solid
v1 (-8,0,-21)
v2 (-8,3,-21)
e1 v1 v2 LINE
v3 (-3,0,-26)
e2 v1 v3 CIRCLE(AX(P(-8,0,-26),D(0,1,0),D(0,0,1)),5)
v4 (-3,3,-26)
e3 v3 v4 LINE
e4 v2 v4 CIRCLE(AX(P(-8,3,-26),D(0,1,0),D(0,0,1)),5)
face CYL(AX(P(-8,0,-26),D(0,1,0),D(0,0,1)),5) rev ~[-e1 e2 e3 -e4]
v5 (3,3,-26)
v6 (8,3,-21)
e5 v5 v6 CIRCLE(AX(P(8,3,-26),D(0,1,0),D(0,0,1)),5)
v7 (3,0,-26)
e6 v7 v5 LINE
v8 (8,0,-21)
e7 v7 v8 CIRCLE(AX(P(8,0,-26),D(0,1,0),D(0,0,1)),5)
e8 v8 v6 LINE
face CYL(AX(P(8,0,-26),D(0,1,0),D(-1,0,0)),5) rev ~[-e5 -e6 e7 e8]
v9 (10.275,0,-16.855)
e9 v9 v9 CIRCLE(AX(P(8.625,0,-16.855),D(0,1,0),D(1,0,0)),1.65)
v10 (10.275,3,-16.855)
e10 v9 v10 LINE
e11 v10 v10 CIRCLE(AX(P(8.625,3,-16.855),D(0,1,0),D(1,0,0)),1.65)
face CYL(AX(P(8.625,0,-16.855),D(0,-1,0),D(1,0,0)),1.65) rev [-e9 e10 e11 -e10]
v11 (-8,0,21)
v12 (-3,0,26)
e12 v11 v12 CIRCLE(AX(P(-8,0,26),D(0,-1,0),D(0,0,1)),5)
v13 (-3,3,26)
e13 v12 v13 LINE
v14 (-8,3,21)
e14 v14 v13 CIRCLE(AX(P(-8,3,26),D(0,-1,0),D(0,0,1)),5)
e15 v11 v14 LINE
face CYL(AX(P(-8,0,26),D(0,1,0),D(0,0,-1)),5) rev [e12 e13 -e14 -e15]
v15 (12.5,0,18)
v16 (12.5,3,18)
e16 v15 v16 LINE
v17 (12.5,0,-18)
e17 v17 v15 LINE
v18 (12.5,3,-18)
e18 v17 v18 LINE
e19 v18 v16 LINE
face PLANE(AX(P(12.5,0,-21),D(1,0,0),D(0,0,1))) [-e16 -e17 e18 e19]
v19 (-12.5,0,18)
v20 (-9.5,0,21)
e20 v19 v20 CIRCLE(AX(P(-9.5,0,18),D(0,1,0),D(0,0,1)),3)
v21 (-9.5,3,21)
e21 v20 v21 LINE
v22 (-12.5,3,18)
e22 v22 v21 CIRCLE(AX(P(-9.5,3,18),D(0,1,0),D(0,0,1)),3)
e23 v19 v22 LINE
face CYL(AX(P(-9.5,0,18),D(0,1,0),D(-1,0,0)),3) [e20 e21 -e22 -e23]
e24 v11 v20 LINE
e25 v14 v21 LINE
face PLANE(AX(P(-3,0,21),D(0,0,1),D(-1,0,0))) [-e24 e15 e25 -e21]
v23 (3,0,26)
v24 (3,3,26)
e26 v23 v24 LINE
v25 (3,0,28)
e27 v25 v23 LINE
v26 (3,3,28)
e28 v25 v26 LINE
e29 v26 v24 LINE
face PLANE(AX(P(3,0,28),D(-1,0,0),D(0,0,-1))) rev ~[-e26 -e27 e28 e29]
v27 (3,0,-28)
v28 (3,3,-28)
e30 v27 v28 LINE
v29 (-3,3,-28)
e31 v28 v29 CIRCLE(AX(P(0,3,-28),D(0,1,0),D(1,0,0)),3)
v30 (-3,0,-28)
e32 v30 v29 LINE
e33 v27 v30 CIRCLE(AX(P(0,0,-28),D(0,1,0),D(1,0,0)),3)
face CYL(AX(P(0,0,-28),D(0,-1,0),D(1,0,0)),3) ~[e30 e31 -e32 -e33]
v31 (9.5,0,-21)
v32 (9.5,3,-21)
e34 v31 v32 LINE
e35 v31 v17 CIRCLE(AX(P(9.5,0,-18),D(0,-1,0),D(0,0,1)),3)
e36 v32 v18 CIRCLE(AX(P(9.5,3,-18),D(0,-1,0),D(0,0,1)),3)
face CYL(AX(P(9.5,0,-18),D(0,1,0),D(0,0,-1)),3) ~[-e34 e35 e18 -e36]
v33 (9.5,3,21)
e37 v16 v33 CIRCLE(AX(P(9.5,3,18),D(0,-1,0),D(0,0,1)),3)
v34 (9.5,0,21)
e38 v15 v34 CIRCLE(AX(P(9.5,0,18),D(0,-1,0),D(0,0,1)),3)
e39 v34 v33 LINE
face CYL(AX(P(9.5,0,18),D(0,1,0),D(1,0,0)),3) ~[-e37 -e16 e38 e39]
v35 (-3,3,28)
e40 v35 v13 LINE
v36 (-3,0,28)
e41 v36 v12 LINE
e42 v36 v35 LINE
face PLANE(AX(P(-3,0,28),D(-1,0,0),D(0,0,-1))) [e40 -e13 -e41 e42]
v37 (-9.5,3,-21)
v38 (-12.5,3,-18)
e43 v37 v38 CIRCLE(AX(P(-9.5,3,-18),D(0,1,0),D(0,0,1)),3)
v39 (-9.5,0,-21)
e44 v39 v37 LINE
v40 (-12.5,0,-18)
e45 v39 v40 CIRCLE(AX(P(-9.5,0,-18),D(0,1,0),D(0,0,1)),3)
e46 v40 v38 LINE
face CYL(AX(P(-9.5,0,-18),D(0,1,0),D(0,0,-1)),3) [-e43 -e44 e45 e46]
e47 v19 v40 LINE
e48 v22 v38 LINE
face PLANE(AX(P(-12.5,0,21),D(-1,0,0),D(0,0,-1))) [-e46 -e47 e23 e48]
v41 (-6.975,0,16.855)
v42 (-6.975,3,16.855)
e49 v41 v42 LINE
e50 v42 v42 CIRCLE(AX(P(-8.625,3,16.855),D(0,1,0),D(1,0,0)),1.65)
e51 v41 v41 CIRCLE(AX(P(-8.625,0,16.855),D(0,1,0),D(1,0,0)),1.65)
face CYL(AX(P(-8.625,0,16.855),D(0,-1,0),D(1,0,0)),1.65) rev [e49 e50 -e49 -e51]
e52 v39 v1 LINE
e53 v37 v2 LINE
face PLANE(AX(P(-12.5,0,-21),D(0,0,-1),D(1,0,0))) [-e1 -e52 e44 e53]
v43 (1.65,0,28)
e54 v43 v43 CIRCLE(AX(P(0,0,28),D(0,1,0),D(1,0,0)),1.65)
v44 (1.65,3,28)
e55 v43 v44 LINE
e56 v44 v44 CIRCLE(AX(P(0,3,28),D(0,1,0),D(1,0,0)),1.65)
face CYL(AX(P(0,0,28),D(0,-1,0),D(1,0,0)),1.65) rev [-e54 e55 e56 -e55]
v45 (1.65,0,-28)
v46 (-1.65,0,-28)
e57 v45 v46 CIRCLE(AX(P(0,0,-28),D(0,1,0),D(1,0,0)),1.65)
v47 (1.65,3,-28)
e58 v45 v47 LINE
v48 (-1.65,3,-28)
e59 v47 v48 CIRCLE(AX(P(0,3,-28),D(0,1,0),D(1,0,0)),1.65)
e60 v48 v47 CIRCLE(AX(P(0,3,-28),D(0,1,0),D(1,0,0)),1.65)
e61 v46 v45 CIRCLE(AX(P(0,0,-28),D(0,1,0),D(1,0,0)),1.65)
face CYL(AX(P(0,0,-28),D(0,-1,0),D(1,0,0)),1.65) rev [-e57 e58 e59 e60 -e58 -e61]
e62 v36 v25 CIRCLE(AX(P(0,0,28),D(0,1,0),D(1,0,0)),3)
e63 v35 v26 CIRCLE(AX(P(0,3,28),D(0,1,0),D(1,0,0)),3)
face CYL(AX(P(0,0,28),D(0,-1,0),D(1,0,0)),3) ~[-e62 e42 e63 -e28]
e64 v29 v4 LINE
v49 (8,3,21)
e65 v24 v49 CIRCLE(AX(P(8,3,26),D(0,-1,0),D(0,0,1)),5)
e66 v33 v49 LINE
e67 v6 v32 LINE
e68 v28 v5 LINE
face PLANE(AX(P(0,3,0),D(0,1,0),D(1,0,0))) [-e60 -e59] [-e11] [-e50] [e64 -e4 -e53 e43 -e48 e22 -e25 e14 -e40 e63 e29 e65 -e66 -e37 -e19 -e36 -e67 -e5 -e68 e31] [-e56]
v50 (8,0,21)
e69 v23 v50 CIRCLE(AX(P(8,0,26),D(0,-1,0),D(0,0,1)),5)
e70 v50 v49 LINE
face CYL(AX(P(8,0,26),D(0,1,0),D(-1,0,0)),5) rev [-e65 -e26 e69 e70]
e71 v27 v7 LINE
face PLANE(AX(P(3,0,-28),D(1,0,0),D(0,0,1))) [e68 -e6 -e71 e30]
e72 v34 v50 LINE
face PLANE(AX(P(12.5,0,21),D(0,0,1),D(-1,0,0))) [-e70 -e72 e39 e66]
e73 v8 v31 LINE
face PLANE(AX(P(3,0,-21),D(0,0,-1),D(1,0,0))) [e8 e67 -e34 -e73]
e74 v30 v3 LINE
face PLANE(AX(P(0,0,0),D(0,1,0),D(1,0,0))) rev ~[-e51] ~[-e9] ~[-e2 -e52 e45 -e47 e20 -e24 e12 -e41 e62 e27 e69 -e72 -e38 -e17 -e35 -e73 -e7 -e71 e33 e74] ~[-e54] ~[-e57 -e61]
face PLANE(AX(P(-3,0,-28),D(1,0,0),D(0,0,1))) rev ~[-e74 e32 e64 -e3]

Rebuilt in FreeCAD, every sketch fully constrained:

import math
import FreeCAD as App
import Part
import Sketcher

V = App.Vector


def edges_at(feature, points):
    """Names of the edges that pass closest to the given points."""
    edges = feature.Shape.Edges
    near = lambda p: min(range(len(edges)), key=lambda i: edges[i].distToShape(Part.Vertex(*p))[0])
    return sorted({f"Edge{near(p) + 1}" for p in points})

doc = App.newDocument("Part")
body = doc.addObject("PartDesign::Body", "Body")

sketch1 = body.newObject("Sketcher::SketchObject", "Sketch")
sketch1.AttachmentSupport = (doc.getObject("XZ_Plane"), [""])
sketch1.MapMode = "FlatFace"
sketch1.addGeometry([
    Part.LineSegment(V(-3, -21, 0), V(-12.5, -21, 0)),
    Part.LineSegment(V(-12.5, -21, 0), V(-12.5, 21, 0)),
    Part.LineSegment(V(-12.5, 21, 0), V(-3, 21, 0)),
    Part.LineSegment(V(-3, 21, 0), V(-3, 28, 0)),
    Part.ArcOfCircle(Part.Circle(V(0, 28, 0), V(0, 0, 1), 3), math.radians(0), math.radians(180)),
    Part.LineSegment(V(3, 28, 0), V(3, 21, 0)),
    Part.LineSegment(V(3, 21, 0), V(12.5, 21, 0)),
    Part.LineSegment(V(12.5, 21, 0), V(12.5, -21, 0)),
    Part.LineSegment(V(12.5, -21, 0), V(3, -21, 0)),
    Part.LineSegment(V(3, -21, 0), V(3, -28, 0)),
    Part.ArcOfCircle(Part.Circle(V(0, -28, 0), V(0, 0, 1), 3), math.radians(180), math.radians(360)),
    Part.LineSegment(V(-3, -28, 0), V(-3, -21, 0)),
    Part.Circle(V(-8.6, 16.9, 0), V(0, 0, 1), 1.6),
    Part.Circle(V(8.6, -16.9, 0), V(0, 0, 1), 1.6),
    Part.Circle(V(0, -28, 0), V(0, 0, 1), 1.6),
    Part.Circle(V(0, 28, 0), V(0, 0, 1), 1.6),
], False)
sketch1.addConstraint([
    Sketcher.Constraint("Coincident", 0, 2, 1, 1),
    Sketcher.Constraint("Coincident", 1, 2, 2, 1),
    Sketcher.Constraint("Coincident", 2, 2, 3, 1),
    Sketcher.Constraint("Tangent", 3, 2, 4, 2),
    Sketcher.Constraint("Tangent", 4, 1, 5, 1),
    Sketcher.Constraint("Coincident", 5, 2, 6, 1),
    Sketcher.Constraint("Coincident", 6, 2, 7, 1),
    Sketcher.Constraint("Coincident", 7, 2, 8, 1),
    Sketcher.Constraint("Coincident", 8, 2, 9, 1),
    Sketcher.Constraint("Tangent", 9, 2, 10, 2),
    Sketcher.Constraint("Tangent", 10, 1, 11, 1),
    Sketcher.Constraint("Coincident", 11, 2, 0, 1),
    Sketcher.Constraint("Horizontal", 0),
    Sketcher.Constraint("Vertical", 1),
    Sketcher.Constraint("Horizontal", 2),
    Sketcher.Constraint("Vertical", 3),
    Sketcher.Constraint("Vertical", 5),
    Sketcher.Constraint("Horizontal", 6),
    Sketcher.Constraint("Vertical", 7),
    Sketcher.Constraint("Horizontal", 8),
    Sketcher.Constraint("Vertical", 9),
    Sketcher.Constraint("Vertical", 11),
    Sketcher.Constraint("Coincident", 14, 3, 10, 3),
    Sketcher.Constraint("Coincident", 15, 3, 4, 3),
    Sketcher.Constraint("Equal", 4, 10),
    Sketcher.Constraint("Equal", 12, 13),
    Sketcher.Constraint("Equal", 13, 14),
    Sketcher.Constraint("Equal", 14, 15),
    Sketcher.Constraint("Symmetric", 4, 3, 10, 3, -1, 1),
    Sketcher.Constraint("Symmetric", 12, 3, 13, 3, -1, 1),
    Sketcher.Constraint("Symmetric", 0, 2, 6, 2, -1, 1),
    Sketcher.Constraint("Symmetric", 2, 2, 5, 2, -2),
    Sketcher.Constraint("Horizontal", 0, 2, 7, 2),
    Sketcher.Constraint("Radius", 4, 3.0),
    Sketcher.Constraint("Diameter", 12, 3.3),
    Sketcher.Constraint("DistanceY", 1, 1, 1, 2, 42.0),
    Sketcher.Constraint("DistanceY", -1, 1, 4, 3, 28.0),
    Sketcher.Constraint("DistanceX", 0, 2, 7, 2, 25.0),
    Sketcher.Constraint("DistanceX", 12, 3, 13, 3, 17.25),
    Sketcher.Constraint("DistanceY", 13, 3, 12, 3, 33.71),
])
pad1 = body.newObject("PartDesign::Pad", "Pad")
pad1.Profile = sketch1
pad1.Length = 3
pad1.Reversed = True
doc.recompute()

fillet = body.newObject("PartDesign::Fillet", "Fillet")
fillet.Base = (pad1, edges_at(pad1, [
    (12.5, 1.5, 21),
    (-12.5, 1.5, 21),
    (12.5, 1.5, -21),
    (-12.5, 1.5, -21),
]))
fillet.Radius = 3
doc.recompute()

fillet2 = body.newObject("PartDesign::Fillet", "Fillet001")
fillet2.Base = (fillet, edges_at(fillet, [
    (3, 1.5, 21),
    (-3, 1.5, 21),
    (-3, 1.5, -21),
    (3, 1.5, -21),
]))
fillet2.Radius = 5

doc.recompute()
